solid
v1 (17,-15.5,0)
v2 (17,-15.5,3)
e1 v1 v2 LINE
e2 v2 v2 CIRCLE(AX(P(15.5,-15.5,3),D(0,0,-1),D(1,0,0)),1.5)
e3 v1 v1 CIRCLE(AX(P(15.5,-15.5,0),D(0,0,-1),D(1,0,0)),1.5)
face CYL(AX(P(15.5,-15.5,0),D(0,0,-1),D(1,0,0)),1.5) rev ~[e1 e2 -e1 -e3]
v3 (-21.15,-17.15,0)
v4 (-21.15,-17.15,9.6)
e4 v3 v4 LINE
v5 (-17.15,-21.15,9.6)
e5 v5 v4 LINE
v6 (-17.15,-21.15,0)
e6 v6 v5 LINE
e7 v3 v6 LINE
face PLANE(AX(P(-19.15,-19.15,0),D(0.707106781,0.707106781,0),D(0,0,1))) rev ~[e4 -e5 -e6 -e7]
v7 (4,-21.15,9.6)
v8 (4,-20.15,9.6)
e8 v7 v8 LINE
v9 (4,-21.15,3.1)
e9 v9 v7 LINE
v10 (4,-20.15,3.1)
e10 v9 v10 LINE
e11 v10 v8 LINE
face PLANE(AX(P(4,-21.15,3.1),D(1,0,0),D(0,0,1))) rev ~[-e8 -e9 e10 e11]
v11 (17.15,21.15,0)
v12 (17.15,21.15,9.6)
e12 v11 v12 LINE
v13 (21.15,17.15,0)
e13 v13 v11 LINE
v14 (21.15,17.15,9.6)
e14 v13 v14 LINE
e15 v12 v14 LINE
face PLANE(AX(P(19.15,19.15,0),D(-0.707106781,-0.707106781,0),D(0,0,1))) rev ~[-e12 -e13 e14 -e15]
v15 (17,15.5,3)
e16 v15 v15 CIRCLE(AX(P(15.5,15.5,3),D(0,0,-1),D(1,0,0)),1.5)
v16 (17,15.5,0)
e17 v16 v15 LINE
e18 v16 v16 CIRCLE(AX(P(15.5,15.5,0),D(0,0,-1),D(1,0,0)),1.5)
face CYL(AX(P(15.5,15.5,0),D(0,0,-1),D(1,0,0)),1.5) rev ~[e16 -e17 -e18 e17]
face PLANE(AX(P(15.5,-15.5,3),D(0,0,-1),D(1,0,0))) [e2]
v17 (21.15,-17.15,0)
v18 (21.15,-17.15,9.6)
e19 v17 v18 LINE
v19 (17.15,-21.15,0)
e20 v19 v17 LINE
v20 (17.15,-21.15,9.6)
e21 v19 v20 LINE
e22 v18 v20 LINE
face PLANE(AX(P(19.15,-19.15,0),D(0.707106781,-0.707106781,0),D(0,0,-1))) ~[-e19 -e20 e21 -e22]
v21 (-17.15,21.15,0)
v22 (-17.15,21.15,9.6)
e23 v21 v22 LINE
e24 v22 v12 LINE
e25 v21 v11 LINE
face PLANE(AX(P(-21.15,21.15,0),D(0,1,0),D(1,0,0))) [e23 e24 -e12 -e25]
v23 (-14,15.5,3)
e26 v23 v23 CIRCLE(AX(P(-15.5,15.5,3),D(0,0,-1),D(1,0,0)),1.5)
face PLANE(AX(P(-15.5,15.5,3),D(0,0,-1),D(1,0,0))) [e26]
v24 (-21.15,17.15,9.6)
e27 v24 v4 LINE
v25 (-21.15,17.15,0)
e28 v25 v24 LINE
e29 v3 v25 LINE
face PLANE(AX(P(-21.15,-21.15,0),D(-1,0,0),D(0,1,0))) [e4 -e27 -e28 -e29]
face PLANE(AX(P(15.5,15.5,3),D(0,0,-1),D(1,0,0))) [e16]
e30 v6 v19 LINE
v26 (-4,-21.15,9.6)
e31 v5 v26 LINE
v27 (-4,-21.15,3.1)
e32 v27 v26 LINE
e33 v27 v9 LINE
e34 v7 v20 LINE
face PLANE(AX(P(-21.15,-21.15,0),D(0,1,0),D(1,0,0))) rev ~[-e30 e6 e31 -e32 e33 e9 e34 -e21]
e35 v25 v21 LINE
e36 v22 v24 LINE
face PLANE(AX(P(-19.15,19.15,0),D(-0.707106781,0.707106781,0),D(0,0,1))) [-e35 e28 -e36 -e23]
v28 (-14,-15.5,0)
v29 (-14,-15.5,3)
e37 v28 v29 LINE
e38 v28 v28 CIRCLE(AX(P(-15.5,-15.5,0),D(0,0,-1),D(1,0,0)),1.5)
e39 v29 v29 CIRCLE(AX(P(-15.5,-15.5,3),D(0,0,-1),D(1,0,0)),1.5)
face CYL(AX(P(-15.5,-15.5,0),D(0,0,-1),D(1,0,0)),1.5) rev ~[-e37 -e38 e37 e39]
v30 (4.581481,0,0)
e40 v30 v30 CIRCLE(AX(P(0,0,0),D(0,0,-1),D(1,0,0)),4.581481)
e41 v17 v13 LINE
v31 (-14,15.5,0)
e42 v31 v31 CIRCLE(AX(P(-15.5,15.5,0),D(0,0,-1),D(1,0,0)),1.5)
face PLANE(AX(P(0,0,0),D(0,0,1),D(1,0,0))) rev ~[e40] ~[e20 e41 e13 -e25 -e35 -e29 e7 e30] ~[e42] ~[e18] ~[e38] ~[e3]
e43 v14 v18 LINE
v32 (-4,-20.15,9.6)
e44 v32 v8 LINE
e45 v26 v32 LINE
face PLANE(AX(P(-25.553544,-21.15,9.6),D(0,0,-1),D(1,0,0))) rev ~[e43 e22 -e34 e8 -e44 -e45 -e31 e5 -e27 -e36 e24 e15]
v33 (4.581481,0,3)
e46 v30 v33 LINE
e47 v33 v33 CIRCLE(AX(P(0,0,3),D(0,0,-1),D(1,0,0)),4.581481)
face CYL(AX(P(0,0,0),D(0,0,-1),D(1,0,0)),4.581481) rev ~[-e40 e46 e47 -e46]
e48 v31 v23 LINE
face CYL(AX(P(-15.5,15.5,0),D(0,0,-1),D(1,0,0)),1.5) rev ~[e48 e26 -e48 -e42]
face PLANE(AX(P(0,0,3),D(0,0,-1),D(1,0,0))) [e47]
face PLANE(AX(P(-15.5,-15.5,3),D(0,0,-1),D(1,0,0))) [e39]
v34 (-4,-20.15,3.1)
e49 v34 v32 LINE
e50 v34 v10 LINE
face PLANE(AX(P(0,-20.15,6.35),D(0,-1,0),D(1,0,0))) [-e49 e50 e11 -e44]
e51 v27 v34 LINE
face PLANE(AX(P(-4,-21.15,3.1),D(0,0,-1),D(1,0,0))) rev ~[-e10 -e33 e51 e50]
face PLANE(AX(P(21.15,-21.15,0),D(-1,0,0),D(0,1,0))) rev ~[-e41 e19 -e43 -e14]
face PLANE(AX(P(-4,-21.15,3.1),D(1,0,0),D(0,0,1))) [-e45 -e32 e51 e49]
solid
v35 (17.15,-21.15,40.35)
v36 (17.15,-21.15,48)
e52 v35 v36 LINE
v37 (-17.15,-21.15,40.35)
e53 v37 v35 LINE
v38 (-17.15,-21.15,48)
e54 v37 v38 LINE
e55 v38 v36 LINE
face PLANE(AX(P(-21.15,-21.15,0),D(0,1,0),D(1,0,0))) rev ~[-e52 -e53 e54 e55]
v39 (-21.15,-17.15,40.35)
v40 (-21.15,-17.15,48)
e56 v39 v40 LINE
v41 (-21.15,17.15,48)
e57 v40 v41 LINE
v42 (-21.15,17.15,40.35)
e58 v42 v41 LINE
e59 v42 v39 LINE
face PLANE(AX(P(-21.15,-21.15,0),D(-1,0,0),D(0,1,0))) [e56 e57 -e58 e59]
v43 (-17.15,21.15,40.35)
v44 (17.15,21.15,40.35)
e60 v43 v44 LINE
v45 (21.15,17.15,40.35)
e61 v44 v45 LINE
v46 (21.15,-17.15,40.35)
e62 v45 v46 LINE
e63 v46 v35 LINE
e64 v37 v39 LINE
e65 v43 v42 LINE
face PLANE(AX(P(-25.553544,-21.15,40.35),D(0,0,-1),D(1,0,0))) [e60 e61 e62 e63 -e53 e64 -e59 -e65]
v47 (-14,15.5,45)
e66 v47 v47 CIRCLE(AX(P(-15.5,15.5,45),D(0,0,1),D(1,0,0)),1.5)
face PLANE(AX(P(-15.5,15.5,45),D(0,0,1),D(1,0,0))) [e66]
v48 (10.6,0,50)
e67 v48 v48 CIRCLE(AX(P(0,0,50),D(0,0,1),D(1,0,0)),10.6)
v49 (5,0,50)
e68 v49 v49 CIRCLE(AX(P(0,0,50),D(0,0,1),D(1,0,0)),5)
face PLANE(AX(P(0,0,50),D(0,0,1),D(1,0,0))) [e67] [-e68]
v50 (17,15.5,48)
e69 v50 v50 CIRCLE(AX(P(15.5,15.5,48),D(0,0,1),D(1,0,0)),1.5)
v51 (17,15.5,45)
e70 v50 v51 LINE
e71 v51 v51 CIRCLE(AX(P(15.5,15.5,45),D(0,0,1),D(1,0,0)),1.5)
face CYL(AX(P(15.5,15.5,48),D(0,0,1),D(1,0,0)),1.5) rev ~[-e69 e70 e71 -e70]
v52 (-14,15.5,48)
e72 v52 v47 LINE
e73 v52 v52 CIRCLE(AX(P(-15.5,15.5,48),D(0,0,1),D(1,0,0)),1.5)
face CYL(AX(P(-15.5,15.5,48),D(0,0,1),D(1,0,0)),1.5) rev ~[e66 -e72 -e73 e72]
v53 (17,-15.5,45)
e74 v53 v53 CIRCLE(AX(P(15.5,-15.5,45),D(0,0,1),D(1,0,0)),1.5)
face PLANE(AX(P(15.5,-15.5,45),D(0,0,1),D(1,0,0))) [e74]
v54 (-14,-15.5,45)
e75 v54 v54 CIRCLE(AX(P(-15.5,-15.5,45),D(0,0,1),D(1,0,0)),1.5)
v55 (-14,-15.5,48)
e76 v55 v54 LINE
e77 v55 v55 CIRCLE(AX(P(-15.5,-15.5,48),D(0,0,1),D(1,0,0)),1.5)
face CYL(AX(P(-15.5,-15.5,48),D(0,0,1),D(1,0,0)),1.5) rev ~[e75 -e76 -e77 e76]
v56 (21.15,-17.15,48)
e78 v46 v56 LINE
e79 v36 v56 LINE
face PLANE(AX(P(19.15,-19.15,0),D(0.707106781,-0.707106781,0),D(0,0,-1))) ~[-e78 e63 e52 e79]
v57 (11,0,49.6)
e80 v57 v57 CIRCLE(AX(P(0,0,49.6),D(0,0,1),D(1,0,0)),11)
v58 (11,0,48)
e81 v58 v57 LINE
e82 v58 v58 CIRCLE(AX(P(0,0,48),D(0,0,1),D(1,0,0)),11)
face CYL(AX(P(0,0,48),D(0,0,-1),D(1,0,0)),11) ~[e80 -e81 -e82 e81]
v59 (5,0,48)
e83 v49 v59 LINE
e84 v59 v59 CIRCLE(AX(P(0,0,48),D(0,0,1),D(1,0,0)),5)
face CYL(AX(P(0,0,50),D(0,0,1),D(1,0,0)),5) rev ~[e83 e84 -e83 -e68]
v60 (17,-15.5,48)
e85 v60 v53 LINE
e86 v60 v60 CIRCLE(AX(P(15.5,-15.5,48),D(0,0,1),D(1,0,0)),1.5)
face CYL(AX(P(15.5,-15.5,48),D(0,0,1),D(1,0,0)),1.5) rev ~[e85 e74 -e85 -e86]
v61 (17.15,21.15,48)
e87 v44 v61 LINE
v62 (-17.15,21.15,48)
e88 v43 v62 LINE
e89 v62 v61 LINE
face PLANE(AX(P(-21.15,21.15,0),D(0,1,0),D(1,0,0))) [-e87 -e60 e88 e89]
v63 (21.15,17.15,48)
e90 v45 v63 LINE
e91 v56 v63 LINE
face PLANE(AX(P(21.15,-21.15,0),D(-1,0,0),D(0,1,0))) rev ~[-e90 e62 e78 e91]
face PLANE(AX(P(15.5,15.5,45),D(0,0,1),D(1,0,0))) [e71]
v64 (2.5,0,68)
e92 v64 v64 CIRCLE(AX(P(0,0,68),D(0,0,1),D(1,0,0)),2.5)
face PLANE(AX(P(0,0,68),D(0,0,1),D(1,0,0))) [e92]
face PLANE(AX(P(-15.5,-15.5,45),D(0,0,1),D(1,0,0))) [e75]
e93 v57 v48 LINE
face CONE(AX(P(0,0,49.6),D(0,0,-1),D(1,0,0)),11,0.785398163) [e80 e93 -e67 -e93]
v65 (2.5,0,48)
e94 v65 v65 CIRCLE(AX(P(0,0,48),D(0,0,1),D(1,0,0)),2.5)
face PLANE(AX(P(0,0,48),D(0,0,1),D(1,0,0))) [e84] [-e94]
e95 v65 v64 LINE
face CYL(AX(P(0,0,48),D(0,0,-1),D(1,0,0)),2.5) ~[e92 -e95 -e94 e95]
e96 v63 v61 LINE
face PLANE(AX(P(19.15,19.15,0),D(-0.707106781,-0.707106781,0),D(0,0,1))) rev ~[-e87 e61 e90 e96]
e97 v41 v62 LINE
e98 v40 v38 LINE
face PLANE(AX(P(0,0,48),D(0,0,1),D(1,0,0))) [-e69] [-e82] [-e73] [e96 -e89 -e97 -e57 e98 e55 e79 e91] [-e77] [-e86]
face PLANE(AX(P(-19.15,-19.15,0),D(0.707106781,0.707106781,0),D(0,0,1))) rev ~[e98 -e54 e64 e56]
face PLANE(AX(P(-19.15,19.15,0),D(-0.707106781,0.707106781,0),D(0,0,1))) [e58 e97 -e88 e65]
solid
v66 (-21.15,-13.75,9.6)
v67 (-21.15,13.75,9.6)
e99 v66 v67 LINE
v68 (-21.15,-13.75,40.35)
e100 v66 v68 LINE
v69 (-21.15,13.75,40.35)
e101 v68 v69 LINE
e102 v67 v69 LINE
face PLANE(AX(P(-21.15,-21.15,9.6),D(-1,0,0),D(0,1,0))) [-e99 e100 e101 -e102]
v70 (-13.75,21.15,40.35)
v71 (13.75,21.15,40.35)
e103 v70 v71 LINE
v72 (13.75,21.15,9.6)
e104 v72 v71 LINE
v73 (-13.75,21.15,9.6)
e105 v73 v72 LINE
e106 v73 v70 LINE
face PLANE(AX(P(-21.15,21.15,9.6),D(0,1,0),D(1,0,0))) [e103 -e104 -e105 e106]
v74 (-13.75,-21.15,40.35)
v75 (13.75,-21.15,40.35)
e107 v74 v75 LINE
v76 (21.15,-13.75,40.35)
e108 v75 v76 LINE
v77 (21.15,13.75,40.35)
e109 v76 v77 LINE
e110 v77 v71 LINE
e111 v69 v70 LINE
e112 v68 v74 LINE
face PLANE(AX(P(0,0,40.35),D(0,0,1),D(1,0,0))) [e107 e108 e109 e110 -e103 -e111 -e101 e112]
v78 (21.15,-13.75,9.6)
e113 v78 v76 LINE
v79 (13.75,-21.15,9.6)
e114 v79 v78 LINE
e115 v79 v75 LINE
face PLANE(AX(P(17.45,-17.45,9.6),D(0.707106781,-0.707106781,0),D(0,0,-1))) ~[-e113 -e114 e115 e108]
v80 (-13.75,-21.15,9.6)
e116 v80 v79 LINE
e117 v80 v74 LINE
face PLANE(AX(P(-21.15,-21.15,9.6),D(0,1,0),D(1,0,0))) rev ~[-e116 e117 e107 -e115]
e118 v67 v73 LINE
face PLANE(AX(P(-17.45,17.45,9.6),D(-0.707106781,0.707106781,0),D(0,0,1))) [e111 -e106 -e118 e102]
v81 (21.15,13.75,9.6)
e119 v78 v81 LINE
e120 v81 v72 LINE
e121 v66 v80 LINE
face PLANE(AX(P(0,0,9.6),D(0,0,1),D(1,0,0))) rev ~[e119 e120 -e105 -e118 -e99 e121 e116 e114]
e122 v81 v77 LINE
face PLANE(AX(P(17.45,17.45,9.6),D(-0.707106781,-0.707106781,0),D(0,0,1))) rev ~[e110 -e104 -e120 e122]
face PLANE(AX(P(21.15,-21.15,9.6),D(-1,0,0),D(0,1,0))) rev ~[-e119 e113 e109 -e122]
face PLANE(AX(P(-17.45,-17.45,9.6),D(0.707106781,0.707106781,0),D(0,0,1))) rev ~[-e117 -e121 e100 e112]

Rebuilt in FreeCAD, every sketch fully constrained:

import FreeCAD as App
import Part
import Sketcher
Q = App.Units.Quantity


def edges_at(feature, points):
    """Names of the edges that pass closest to the given points."""
    edges = feature.Shape.Edges
    near = lambda p: min(range(len(edges)), key=lambda i: edges[i].distToShape(Part.Vertex(*p))[0])
    return sorted({f"Edge{near(p) + 1}" for p in points})

doc = App.newDocument("Part")
body = doc.addObject("PartDesign::Body", "Body")
body.AllowCompound = True

sketch1 = body.newObject("Sketcher::SketchObject", "Sketch")
sketch1.AttachmentSupport = (doc.getObject("XY_Plane"), [""])
sketch1.MapMode = "FlatFace"
sketch1.addGeometry(Part.LineSegment(App.Vector(-21.15, 21.15, 0), App.Vector(-21.15, -21.15, 0)), False)
sketch1.addGeometry(Part.LineSegment(App.Vector(-21.15, -21.15, 0), App.Vector(21.15, -21.15, 0)), False)
sketch1.addGeometry(Part.LineSegment(App.Vector(21.15, -21.15, 0), App.Vector(21.15, 21.15, 0)), False)
sketch1.addGeometry(Part.LineSegment(App.Vector(21.15, 21.15, 0), App.Vector(-21.15, 21.15, 0)), False)
sketch1.addConstraint(Sketcher.Constraint("Coincident", 0, 2, 1, 1))
sketch1.addConstraint(Sketcher.Constraint("Coincident", 1, 2, 2, 1))
sketch1.addConstraint(Sketcher.Constraint("Coincident", 2, 2, 3, 1))
sketch1.addConstraint(Sketcher.Constraint("Coincident", 3, 2, 0, 1))
sketch1.addConstraint(Sketcher.Constraint("Vertical", 0))
sketch1.addConstraint(Sketcher.Constraint("Horizontal", 1))
sketch1.addConstraint(Sketcher.Constraint("Vertical", 2))
sketch1.addConstraint(Sketcher.Constraint("Horizontal", 3))
sketch1.addConstraint(Sketcher.Constraint("Symmetric", 0, 2, 2, 2, -1, 1))
sketch1.addConstraint(Sketcher.Constraint("Equal", 3, 0))
sketch1.addConstraint(Sketcher.Constraint("DistanceX", 1, 1, 1, 2, Q("42.3 mm")))
pad1 = body.newObject("PartDesign::Pad", "Pad")
pad1.Profile = sketch1
pad1.Length = 48
doc.recompute()

chamfer = body.newObject("PartDesign::Chamfer", "Chamfer")
chamfer.Base = (pad1, edges_at(pad1, [
    (21.15, -21.15, 24),
    (21.15, 21.15, 24),
    (-21.15, 21.15, 24),
    (-21.15, -21.15, 24),
]))
chamfer.Size = 4

sketch2 = body.newObject("Sketcher::SketchObject", "Sketch001")
sketch2.AttachmentSupport = (doc.getObject("XY_Plane"), [""])
sketch2.MapMode = "FlatFace"
sketch2.AttachmentOffset = App.Placement(App.Vector(0, 0, 48), App.Rotation())
sketch2.addGeometry(Part.Circle(App.Vector(0, 0, 0), App.Vector(0, 0, 1), 11), False)
sketch2.addConstraint(Sketcher.Constraint("Coincident", 0, 3, -1, 1))
sketch2.addConstraint(Sketcher.Constraint("Diameter", 0, Q("22 mm")))
pad2 = body.newObject("PartDesign::Pad", "Pad001")
pad2.Profile = sketch2
pad2.Length = 2
doc.recompute()

chamfer2 = body.newObject("PartDesign::Chamfer", "Chamfer001")
chamfer2.Base = (pad2, edges_at(pad2, [(-11, 0, 50)]))
chamfer2.Size = 0.4

sketch3 = body.newObject("Sketcher::SketchObject", "Sketch002")
sketch3.AttachmentSupport = (doc.getObject("XY_Plane"), [""])
sketch3.MapMode = "FlatFace"
sketch3.AttachmentOffset = App.Placement(App.Vector(0, 0, 50), App.Rotation())
sketch3.addGeometry(Part.Circle(App.Vector(0, 0, 0), App.Vector(0, 0, 1), 5), False)
sketch3.addConstraint(Sketcher.Constraint("Coincident", 0, 3, -1, 1))
sketch3.addConstraint(Sketcher.Constraint("Diameter", 0, Q("10 mm")))
pocket1 = body.newObject("PartDesign::Pocket", "Pocket")
pocket1.Profile = sketch3
pocket1.Length = 2

sketch4 = body.newObject("Sketcher::SketchObject", "Sketch003")
sketch4.AttachmentSupport = (doc.getObject("XY_Plane"), [""])
sketch4.MapMode = "FlatFace"
sketch4.AttachmentOffset = App.Placement(App.Vector(0, 0, 48), App.Rotation())
sketch4.addGeometry(Part.Circle(App.Vector(0, 0, 0), App.Vector(0, 0, 1), 2.5), False)
sketch4.addConstraint(Sketcher.Constraint("Coincident", 0, 3, -1, 1))
sketch4.addConstraint(Sketcher.Constraint("Diameter", 0, Q("5 mm")))
pad3 = body.newObject("PartDesign::Pad", "Pad002")
pad3.Profile = sketch4
pad3.Length = 20

sketch5 = body.newObject("Sketcher::SketchObject", "Sketch004")
sketch5.AttachmentSupport = (doc.getObject("XY_Plane"), [""])
sketch5.MapMode = "FlatFace"
sketch5.AttachmentOffset = App.Placement(App.Vector(0, 0, 48), App.Rotation())
sketch5.addGeometry(Part.Circle(App.Vector(-15.5, 15.5, 0), App.Vector(0, 0, 1), 1.5), False)
sketch5.addGeometry(Part.Circle(App.Vector(15.5, 15.5, 0), App.Vector(0, 0, 1), 1.5), False)
sketch5.addGeometry(Part.Circle(App.Vector(-15.5, -15.5, 0), App.Vector(0, 0, 1), 1.5), False)
sketch5.addGeometry(Part.Circle(App.Vector(15.5, -15.5, 0), App.Vector(0, 0, 1), 1.5), False)
sketch5.addConstraint(Sketcher.Constraint("Equal", 0, 1))
sketch5.addConstraint(Sketcher.Constraint("Equal", 1, 2))
sketch5.addConstraint(Sketcher.Constraint("Equal", 2, 3))
sketch5.addConstraint(Sketcher.Constraint("Symmetric", 1, 3, 2, 3, -1, 1))
sketch5.addConstraint(Sketcher.Constraint("Symmetric", 0, 3, 3, 3, -1, 1))
sketch5.addConstraint(Sketcher.Constraint("Symmetric", 0, 3, 1, 3, -2))
sketch5.addConstraint(Sketcher.Constraint("Diameter", 0, Q("3 mm")))
sketch5.addConstraint(Sketcher.Constraint("DistanceX", 0, 3, 1, 3, Q("31 mm")))
sketch5.addConstraint(Sketcher.Constraint("DistanceY", 2, 3, 0, 3, Q("31 mm")))
pocket2 = body.newObject("PartDesign::Pocket", "Pocket001")
pocket2.Profile = sketch5
pocket2.Length = 3

sketch6 = body.newObject("Sketcher::SketchObject", "Sketch005")
sketch6.AttachmentSupport = (doc.getObject("XY_Plane"), [""])
sketch6.MapMode = "FlatFace"
sketch6.addGeometry(Part.Circle(App.Vector(-15.5, -15.5, 0), App.Vector(0, 0, 1), 1.5), False)
sketch6.addGeometry(Part.Circle(App.Vector(15.5, -15.5, 0), App.Vector(0, 0, 1), 1.5), False)
sketch6.addGeometry(Part.Circle(App.Vector(-15.5, 15.5, 0), App.Vector(0, 0, 1), 1.5), False)
sketch6.addGeometry(Part.Circle(App.Vector(15.5, 15.5, 0), App.Vector(0, 0, 1), 1.5), False)
sketch6.addGeometry(Part.Circle(App.Vector(0, 0, 0), App.Vector(0, 0, 1), 4.581481), False)
sketch6.addConstraint(Sketcher.Constraint("Coincident", 4, 3, -1, 1))
sketch6.addConstraint(Sketcher.Constraint("Equal", 0, 1))
sketch6.addConstraint(Sketcher.Constraint("Equal", 1, 2))
sketch6.addConstraint(Sketcher.Constraint("Equal", 2, 3))
sketch6.addConstraint(Sketcher.Constraint("Symmetric", 1, 3, 2, 3, -1, 1))
sketch6.addConstraint(Sketcher.Constraint("Symmetric", 0, 3, 3, 3, -1, 1))
sketch6.addConstraint(Sketcher.Constraint("Symmetric", 0, 3, 1, 3, -2))
sketch6.addConstraint(Sketcher.Constraint("Diameter", 0, Q("3 mm")))
sketch6.addConstraint(Sketcher.Constraint("DistanceX", 0, 3, 1, 3, Q("31 mm")))
sketch6.addConstraint(Sketcher.Constraint("DistanceY", 0, 3, 2, 3, Q("31 mm")))
sketch6.addConstraint(Sketcher.Constraint("Diameter", 4, Q("9.162962 mm")))
pocket3 = body.newObject("PartDesign::Pocket", "Pocket002")
pocket3.Profile = sketch6
pocket3.Length = 3
pocket3.Reversed = True

sketch7 = body.newObject("Sketcher::SketchObject", "Sketch006")
sketch7.AttachmentSupport = (doc.getObject("XZ_Plane"), [""])
sketch7.MapMode = "FlatFace"
sketch7.AttachmentOffset = App.Placement(App.Vector(0, 0, 21.15), App.Rotation())
sketch7.addGeometry(Part.LineSegment(App.Vector(-4, 9.6, 0), App.Vector(-4, 3.1, 0)), False)
sketch7.addGeometry(Part.LineSegment(App.Vector(-4, 3.1, 0), App.Vector(4, 3.1, 0)), False)
sketch7.addGeometry(Part.LineSegment(App.Vector(4, 3.1, 0), App.Vector(4, 9.6, 0)), False)
sketch7.addGeometry(Part.LineSegment(App.Vector(4, 9.6, 0), App.Vector(-4, 9.6, 0)), False)
sketch7.addConstraint(Sketcher.Constraint("Coincident", 0, 2, 1, 1))
sketch7.addConstraint(Sketcher.Constraint("Coincident", 1, 2, 2, 1))
sketch7.addConstraint(Sketcher.Constraint("Coincident", 2, 2, 3, 1))
sketch7.addConstraint(Sketcher.Constraint("Coincident", 3, 2, 0, 1))
sketch7.addConstraint(Sketcher.Constraint("Vertical", 0))
sketch7.addConstraint(Sketcher.Constraint("Horizontal", 1))
sketch7.addConstraint(Sketcher.Constraint("Vertical", 2))
sketch7.addConstraint(Sketcher.Constraint("Horizontal", 3))
sketch7.addConstraint(Sketcher.Constraint("DistanceX", 1, 1, 1, 2, Q("8 mm")))
sketch7.addConstraint(Sketcher.Constraint("DistanceY", 0, 2, 0, 1, Q("6.5 mm")))
sketch7.addConstraint(Sketcher.Constraint("DistanceX", 0, 2, -1, 1, Q("4 mm")))
sketch7.addConstraint(Sketcher.Constraint("DistanceY", -1, 1, 0, 2, Q("3.1 mm")))
pocket4 = body.newObject("PartDesign::Pocket", "Pocket003")
pocket4.Profile = sketch7
pocket4.Length = 1

sketch8 = body.newObject("Sketcher::SketchObject", "Sketch007")
sketch8.AttachmentSupport = (doc.getObject("XZ_Plane"), [""])
sketch8.MapMode = "FlatFace"
sketch8.AttachmentOffset = App.Placement(App.Vector(0, 0, 21.15), App.Rotation())
sketch8.addGeometry(Part.LineSegment(App.Vector(-25.553544, 40.35, 0), App.Vector(-25.553544, 9.6, 0)), False)
sketch8.addGeometry(Part.LineSegment(App.Vector(-25.553544, 9.6, 0), App.Vector(25.553544, 9.6, 0)), False)
sketch8.addGeometry(Part.LineSegment(App.Vector(25.553544, 9.6, 0), App.Vector(25.553544, 40.35, 0)), False)
sketch8.addGeometry(Part.LineSegment(App.Vector(25.553544, 40.35, 0), App.Vector(-25.553544, 40.35, 0)), False)
sketch8.addConstraint(Sketcher.Constraint("Coincident", 0, 2, 1, 1))
sketch8.addConstraint(Sketcher.Constraint("Coincident", 1, 2, 2, 1))
sketch8.addConstraint(Sketcher.Constraint("Coincident", 2, 2, 3, 1))
sketch8.addConstraint(Sketcher.Constraint("Coincident", 3, 2, 0, 1))
sketch8.addConstraint(Sketcher.Constraint("Vertical", 0))
sketch8.addConstraint(Sketcher.Constraint("Horizontal", 1))
sketch8.addConstraint(Sketcher.Constraint("Vertical", 2))
sketch8.addConstraint(Sketcher.Constraint("Horizontal", 3))
sketch8.addConstraint(Sketcher.Constraint("DistanceY", 0, 2, 0, 1, Q("30.75 mm")))
sketch8.addConstraint(Sketcher.Constraint("DistanceY", -1, 1, 0, 2, Q("9.6 mm")))
sketch8.addConstraint(Sketcher.Constraint("DistanceX", 1, 1, 1, 2, Q("51.107088 mm")))
sketch8.addConstraint(Sketcher.Constraint("DistanceX", 0, 2, -1, 1, Q("25.553544 mm")))
pocket5 = body.newObject("PartDesign::Pocket", "Pocket004")
pocket5.Profile = sketch8
pocket5.Length = 42.3
body2 = doc.addObject("PartDesign::Body", "Body001")

sketch9 = body2.newObject("Sketcher::SketchObject", "Sketch008")
sketch9.AttachmentSupport = (doc.getObject("XY_Plane001"), [""])
sketch9.MapMode = "FlatFace"
sketch9.AttachmentOffset = App.Placement(App.Vector(0, 0, 9.6), App.Rotation())
sketch9.addGeometry(Part.LineSegment(App.Vector(-21.15, 21.15, 0), App.Vector(-21.15, -21.15, 0)), False)
sketch9.addGeometry(Part.LineSegment(App.Vector(-21.15, -21.15, 0), App.Vector(21.15, -21.15, 0)), False)
sketch9.addGeometry(Part.LineSegment(App.Vector(21.15, -21.15, 0), App.Vector(21.15, 21.15, 0)), False)
sketch9.addGeometry(Part.LineSegment(App.Vector(21.15, 21.15, 0), App.Vector(-21.15, 21.15, 0)), False)
sketch9.addConstraint(Sketcher.Constraint("Coincident", 0, 2, 1, 1))
sketch9.addConstraint(Sketcher.Constraint("Coincident", 1, 2, 2, 1))
sketch9.addConstraint(Sketcher.Constraint("Coincident", 2, 2, 3, 1))
sketch9.addConstraint(Sketcher.Constraint("Coincident", 3, 2, 0, 1))
sketch9.addConstraint(Sketcher.Constraint("Vertical", 0))
sketch9.addConstraint(Sketcher.Constraint("Horizontal", 1))
sketch9.addConstraint(Sketcher.Constraint("Vertical", 2))
sketch9.addConstraint(Sketcher.Constraint("Horizontal", 3))
sketch9.addConstraint(Sketcher.Constraint("Symmetric", 0, 2, 2, 2, -1, 1))
sketch9.addConstraint(Sketcher.Constraint("Equal", 3, 0))
sketch9.addConstraint(Sketcher.Constraint("DistanceX", 1, 1, 1, 2, Q("42.3 mm")))
pad4 = body2.newObject("PartDesign::Pad", "Pad003")
pad4.Profile = sketch9
pad4.Length = 30.75
doc.recompute()

chamfer3 = body2.newObject("PartDesign::Chamfer", "Chamfer002")
chamfer3.Base = (pad4, edges_at(pad4, [
    (-21.15, -21.15, 24.975),
    (-21.15, 21.15, 24.975),
    (21.15, -21.15, 24.975),
    (21.15, 21.15, 24.975),
]))
chamfer3.Size = 7.4

doc.recompute()
